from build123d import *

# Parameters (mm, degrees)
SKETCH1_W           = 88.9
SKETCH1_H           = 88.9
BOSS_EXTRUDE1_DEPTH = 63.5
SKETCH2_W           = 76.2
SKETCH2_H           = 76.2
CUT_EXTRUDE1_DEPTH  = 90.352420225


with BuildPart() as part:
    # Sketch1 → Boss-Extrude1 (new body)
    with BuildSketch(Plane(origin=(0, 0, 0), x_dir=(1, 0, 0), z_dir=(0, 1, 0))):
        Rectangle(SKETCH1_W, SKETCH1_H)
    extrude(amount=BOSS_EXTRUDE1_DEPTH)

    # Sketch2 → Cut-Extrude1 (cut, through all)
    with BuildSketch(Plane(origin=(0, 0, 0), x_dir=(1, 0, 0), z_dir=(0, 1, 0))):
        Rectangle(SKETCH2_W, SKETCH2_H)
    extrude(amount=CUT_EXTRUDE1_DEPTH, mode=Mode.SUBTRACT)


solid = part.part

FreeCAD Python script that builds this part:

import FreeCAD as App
import Part
import Sketcher
from FreeCAD import Vector
Q = App.Units.Quantity


def add_polygon(sketch, points):
    """Adds a closed chain of lines whose ends are joined by coincident constraints."""
    first, n = sketch.GeometryCount, len(points)
    for a, b in zip(points, points[1:] + points[:1]):
        sketch.addGeometry(Part.LineSegment(App.Vector(*a, 0), App.Vector(*b, 0)), False)
    for i in range(n):
        sketch.addConstraint(Sketcher.Constraint("Coincident", first + i, 2, first + (i + 1) % n, 1))

doc = App.newDocument("Part")
body = doc.addObject("PartDesign::Body", "Body")

# Sketch on XZ plane
sketch1 = body.newObject("Sketcher::SketchObject", "Sketch")
sketch1.AttachmentSupport = (doc.getObject("XZ_Plane"), [""])
sketch1.MapMode = "FlatFace"
add_polygon(sketch1, [(-44, -44), (-44, 44), (44, 44), (44, -44)])  # lines 0-3
sketch1.addConstraint(Sketcher.Constraint("Vertical", 0))
sketch1.addConstraint(Sketcher.Constraint("Horizontal", 1))
sketch1.addConstraint(Sketcher.Constraint("Vertical", 2))
sketch1.addConstraint(Sketcher.Constraint("Horizontal", 3))
sketch1.addConstraint(Sketcher.Constraint("Symmetric", 0, 2, 2, 2, -1, 1))
sketch1.addConstraint(Sketcher.Constraint("Equal", 3, 0))
sketch1.addConstraint(Sketcher.Constraint("DistanceX", 1, 1, 1, 2, Q("3.5 in")))
pad1 = body.newObject("PartDesign::Pad", "Pad")
pad1.Profile = sketch1
pad1.Length = Q("2.5 in")
pad1.Reversed = True

# Sketch on XZ plane
sketch2 = body.newObject("Sketcher::SketchObject", "Sketch001")
sketch2.AttachmentSupport = (doc.getObject("XZ_Plane"), [""])
sketch2.MapMode = "FlatFace"
add_polygon(sketch2, [(-38, -38), (-38, 38), (38, 38), (38, -38)])  # lines 0-3
sketch2.addConstraint(Sketcher.Constraint("Vertical", 0))
sketch2.addConstraint(Sketcher.Constraint("Horizontal", 1))
sketch2.addConstraint(Sketcher.Constraint("Vertical", 2))
sketch2.addConstraint(Sketcher.Constraint("Horizontal", 3))
sketch2.addConstraint(Sketcher.Constraint("Symmetric", 0, 2, 2, 2, -1, 1))
sketch2.addConstraint(Sketcher.Constraint("Equal", 3, 0))
sketch2.addConstraint(Sketcher.Constraint("DistanceX", 1, 1, 1, 2, Q("3 in")))
pocket1 = body.newObject("PartDesign::Pocket", "Pocket")
pocket1.Profile = sketch2
pocket1.Type = "ThroughAll"

doc.recompute()
